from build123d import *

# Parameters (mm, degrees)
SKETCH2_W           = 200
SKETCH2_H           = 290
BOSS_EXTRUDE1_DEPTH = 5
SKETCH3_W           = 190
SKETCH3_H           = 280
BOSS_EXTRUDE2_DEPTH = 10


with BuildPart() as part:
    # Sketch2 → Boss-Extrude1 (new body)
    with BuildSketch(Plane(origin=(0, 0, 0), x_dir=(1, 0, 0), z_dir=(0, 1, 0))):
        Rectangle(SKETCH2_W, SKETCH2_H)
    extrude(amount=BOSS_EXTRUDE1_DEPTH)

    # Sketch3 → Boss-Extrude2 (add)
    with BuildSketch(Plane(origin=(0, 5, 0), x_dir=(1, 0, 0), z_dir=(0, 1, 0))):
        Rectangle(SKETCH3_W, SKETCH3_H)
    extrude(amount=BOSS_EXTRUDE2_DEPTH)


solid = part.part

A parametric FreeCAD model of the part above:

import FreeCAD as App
import Part
import Sketcher

V = App.Vector
Q = App.Units.Quantity


def add_polygon(sketch, points):
    """Adds a closed chain of lines whose ends are joined by coincident constraints."""
    first, n = sketch.GeometryCount, len(points)
    for a, b in zip(points, points[1:] + points[:1]):
        sketch.addGeometry(Part.LineSegment(App.Vector(*a, 0), App.Vector(*b, 0)), False)
    for i in range(n):
        sketch.addConstraint(Sketcher.Constraint("Coincident", first + i, 2, first + (i + 1) % n, 1))

doc = App.newDocument("Part")
body = doc.addObject("PartDesign::Body", "Body")

# Sketch on XZ plane
sketch1 = body.newObject("Sketcher::SketchObject", "Sketch")
sketch1.AttachmentSupport = (doc.getObject("XZ_Plane"), [""])
sketch1.MapMode = "FlatFace"
add_polygon(sketch1, [(-100, -145), (-100, 145), (100, 145), (100, -145)])  # lines 0-3
sketch1.addConstraint(Sketcher.Constraint("Vertical", 0))
sketch1.addConstraint(Sketcher.Constraint("Horizontal", 1))
sketch1.addConstraint(Sketcher.Constraint("Vertical", 2))
sketch1.addConstraint(Sketcher.Constraint("Horizontal", 3))
sketch1.addConstraint(Sketcher.Constraint("Symmetric", 0, 2, 2, 2, -1, 1))
sketch1.addConstraint(Sketcher.Constraint("DistanceX", 1, 1, 1, 2, Q("200 mm")))
sketch1.addConstraint(Sketcher.Constraint("DistanceY", 0, 1, 0, 2, Q("290 mm")))
pad1 = body.newObject("PartDesign::Pad", "Pad")
pad1.Profile = sketch1
pad1.Length = 5
pad1.Reversed = True

# Sketch on XZ plane
sketch2 = body.newObject("Sketcher::SketchObject", "Sketch001")
sketch2.AttachmentSupport = (doc.getObject("XZ_Plane"), [""])
sketch2.MapMode = "FlatFace"
sketch2.AttachmentOffset = App.Placement(V(0, 0, -5), App.Rotation())
add_polygon(sketch2, [(-95, -140), (-95, 140), (95, 140), (95, -140)])  # lines 0-3
sketch2.addConstraint(Sketcher.Constraint("Vertical", 0))
sketch2.addConstraint(Sketcher.Constraint("Horizontal", 1))
sketch2.addConstraint(Sketcher.Constraint("Vertical", 2))
sketch2.addConstraint(Sketcher.Constraint("Horizontal", 3))
sketch2.addConstraint(Sketcher.Constraint("Symmetric", 0, 2, 2, 2, -1, 1))
sketch2.addConstraint(Sketcher.Constraint("DistanceX", 1, 1, 1, 2, Q("190 mm")))
sketch2.addConstraint(Sketcher.Constraint("DistanceY", 0, 1, 0, 2, Q("280 mm")))
pad2 = body.newObject("PartDesign::Pad", "Pad001")
pad2.Profile = sketch2
pad2.Length = 10
pad2.Reversed = True

doc.recompute()
